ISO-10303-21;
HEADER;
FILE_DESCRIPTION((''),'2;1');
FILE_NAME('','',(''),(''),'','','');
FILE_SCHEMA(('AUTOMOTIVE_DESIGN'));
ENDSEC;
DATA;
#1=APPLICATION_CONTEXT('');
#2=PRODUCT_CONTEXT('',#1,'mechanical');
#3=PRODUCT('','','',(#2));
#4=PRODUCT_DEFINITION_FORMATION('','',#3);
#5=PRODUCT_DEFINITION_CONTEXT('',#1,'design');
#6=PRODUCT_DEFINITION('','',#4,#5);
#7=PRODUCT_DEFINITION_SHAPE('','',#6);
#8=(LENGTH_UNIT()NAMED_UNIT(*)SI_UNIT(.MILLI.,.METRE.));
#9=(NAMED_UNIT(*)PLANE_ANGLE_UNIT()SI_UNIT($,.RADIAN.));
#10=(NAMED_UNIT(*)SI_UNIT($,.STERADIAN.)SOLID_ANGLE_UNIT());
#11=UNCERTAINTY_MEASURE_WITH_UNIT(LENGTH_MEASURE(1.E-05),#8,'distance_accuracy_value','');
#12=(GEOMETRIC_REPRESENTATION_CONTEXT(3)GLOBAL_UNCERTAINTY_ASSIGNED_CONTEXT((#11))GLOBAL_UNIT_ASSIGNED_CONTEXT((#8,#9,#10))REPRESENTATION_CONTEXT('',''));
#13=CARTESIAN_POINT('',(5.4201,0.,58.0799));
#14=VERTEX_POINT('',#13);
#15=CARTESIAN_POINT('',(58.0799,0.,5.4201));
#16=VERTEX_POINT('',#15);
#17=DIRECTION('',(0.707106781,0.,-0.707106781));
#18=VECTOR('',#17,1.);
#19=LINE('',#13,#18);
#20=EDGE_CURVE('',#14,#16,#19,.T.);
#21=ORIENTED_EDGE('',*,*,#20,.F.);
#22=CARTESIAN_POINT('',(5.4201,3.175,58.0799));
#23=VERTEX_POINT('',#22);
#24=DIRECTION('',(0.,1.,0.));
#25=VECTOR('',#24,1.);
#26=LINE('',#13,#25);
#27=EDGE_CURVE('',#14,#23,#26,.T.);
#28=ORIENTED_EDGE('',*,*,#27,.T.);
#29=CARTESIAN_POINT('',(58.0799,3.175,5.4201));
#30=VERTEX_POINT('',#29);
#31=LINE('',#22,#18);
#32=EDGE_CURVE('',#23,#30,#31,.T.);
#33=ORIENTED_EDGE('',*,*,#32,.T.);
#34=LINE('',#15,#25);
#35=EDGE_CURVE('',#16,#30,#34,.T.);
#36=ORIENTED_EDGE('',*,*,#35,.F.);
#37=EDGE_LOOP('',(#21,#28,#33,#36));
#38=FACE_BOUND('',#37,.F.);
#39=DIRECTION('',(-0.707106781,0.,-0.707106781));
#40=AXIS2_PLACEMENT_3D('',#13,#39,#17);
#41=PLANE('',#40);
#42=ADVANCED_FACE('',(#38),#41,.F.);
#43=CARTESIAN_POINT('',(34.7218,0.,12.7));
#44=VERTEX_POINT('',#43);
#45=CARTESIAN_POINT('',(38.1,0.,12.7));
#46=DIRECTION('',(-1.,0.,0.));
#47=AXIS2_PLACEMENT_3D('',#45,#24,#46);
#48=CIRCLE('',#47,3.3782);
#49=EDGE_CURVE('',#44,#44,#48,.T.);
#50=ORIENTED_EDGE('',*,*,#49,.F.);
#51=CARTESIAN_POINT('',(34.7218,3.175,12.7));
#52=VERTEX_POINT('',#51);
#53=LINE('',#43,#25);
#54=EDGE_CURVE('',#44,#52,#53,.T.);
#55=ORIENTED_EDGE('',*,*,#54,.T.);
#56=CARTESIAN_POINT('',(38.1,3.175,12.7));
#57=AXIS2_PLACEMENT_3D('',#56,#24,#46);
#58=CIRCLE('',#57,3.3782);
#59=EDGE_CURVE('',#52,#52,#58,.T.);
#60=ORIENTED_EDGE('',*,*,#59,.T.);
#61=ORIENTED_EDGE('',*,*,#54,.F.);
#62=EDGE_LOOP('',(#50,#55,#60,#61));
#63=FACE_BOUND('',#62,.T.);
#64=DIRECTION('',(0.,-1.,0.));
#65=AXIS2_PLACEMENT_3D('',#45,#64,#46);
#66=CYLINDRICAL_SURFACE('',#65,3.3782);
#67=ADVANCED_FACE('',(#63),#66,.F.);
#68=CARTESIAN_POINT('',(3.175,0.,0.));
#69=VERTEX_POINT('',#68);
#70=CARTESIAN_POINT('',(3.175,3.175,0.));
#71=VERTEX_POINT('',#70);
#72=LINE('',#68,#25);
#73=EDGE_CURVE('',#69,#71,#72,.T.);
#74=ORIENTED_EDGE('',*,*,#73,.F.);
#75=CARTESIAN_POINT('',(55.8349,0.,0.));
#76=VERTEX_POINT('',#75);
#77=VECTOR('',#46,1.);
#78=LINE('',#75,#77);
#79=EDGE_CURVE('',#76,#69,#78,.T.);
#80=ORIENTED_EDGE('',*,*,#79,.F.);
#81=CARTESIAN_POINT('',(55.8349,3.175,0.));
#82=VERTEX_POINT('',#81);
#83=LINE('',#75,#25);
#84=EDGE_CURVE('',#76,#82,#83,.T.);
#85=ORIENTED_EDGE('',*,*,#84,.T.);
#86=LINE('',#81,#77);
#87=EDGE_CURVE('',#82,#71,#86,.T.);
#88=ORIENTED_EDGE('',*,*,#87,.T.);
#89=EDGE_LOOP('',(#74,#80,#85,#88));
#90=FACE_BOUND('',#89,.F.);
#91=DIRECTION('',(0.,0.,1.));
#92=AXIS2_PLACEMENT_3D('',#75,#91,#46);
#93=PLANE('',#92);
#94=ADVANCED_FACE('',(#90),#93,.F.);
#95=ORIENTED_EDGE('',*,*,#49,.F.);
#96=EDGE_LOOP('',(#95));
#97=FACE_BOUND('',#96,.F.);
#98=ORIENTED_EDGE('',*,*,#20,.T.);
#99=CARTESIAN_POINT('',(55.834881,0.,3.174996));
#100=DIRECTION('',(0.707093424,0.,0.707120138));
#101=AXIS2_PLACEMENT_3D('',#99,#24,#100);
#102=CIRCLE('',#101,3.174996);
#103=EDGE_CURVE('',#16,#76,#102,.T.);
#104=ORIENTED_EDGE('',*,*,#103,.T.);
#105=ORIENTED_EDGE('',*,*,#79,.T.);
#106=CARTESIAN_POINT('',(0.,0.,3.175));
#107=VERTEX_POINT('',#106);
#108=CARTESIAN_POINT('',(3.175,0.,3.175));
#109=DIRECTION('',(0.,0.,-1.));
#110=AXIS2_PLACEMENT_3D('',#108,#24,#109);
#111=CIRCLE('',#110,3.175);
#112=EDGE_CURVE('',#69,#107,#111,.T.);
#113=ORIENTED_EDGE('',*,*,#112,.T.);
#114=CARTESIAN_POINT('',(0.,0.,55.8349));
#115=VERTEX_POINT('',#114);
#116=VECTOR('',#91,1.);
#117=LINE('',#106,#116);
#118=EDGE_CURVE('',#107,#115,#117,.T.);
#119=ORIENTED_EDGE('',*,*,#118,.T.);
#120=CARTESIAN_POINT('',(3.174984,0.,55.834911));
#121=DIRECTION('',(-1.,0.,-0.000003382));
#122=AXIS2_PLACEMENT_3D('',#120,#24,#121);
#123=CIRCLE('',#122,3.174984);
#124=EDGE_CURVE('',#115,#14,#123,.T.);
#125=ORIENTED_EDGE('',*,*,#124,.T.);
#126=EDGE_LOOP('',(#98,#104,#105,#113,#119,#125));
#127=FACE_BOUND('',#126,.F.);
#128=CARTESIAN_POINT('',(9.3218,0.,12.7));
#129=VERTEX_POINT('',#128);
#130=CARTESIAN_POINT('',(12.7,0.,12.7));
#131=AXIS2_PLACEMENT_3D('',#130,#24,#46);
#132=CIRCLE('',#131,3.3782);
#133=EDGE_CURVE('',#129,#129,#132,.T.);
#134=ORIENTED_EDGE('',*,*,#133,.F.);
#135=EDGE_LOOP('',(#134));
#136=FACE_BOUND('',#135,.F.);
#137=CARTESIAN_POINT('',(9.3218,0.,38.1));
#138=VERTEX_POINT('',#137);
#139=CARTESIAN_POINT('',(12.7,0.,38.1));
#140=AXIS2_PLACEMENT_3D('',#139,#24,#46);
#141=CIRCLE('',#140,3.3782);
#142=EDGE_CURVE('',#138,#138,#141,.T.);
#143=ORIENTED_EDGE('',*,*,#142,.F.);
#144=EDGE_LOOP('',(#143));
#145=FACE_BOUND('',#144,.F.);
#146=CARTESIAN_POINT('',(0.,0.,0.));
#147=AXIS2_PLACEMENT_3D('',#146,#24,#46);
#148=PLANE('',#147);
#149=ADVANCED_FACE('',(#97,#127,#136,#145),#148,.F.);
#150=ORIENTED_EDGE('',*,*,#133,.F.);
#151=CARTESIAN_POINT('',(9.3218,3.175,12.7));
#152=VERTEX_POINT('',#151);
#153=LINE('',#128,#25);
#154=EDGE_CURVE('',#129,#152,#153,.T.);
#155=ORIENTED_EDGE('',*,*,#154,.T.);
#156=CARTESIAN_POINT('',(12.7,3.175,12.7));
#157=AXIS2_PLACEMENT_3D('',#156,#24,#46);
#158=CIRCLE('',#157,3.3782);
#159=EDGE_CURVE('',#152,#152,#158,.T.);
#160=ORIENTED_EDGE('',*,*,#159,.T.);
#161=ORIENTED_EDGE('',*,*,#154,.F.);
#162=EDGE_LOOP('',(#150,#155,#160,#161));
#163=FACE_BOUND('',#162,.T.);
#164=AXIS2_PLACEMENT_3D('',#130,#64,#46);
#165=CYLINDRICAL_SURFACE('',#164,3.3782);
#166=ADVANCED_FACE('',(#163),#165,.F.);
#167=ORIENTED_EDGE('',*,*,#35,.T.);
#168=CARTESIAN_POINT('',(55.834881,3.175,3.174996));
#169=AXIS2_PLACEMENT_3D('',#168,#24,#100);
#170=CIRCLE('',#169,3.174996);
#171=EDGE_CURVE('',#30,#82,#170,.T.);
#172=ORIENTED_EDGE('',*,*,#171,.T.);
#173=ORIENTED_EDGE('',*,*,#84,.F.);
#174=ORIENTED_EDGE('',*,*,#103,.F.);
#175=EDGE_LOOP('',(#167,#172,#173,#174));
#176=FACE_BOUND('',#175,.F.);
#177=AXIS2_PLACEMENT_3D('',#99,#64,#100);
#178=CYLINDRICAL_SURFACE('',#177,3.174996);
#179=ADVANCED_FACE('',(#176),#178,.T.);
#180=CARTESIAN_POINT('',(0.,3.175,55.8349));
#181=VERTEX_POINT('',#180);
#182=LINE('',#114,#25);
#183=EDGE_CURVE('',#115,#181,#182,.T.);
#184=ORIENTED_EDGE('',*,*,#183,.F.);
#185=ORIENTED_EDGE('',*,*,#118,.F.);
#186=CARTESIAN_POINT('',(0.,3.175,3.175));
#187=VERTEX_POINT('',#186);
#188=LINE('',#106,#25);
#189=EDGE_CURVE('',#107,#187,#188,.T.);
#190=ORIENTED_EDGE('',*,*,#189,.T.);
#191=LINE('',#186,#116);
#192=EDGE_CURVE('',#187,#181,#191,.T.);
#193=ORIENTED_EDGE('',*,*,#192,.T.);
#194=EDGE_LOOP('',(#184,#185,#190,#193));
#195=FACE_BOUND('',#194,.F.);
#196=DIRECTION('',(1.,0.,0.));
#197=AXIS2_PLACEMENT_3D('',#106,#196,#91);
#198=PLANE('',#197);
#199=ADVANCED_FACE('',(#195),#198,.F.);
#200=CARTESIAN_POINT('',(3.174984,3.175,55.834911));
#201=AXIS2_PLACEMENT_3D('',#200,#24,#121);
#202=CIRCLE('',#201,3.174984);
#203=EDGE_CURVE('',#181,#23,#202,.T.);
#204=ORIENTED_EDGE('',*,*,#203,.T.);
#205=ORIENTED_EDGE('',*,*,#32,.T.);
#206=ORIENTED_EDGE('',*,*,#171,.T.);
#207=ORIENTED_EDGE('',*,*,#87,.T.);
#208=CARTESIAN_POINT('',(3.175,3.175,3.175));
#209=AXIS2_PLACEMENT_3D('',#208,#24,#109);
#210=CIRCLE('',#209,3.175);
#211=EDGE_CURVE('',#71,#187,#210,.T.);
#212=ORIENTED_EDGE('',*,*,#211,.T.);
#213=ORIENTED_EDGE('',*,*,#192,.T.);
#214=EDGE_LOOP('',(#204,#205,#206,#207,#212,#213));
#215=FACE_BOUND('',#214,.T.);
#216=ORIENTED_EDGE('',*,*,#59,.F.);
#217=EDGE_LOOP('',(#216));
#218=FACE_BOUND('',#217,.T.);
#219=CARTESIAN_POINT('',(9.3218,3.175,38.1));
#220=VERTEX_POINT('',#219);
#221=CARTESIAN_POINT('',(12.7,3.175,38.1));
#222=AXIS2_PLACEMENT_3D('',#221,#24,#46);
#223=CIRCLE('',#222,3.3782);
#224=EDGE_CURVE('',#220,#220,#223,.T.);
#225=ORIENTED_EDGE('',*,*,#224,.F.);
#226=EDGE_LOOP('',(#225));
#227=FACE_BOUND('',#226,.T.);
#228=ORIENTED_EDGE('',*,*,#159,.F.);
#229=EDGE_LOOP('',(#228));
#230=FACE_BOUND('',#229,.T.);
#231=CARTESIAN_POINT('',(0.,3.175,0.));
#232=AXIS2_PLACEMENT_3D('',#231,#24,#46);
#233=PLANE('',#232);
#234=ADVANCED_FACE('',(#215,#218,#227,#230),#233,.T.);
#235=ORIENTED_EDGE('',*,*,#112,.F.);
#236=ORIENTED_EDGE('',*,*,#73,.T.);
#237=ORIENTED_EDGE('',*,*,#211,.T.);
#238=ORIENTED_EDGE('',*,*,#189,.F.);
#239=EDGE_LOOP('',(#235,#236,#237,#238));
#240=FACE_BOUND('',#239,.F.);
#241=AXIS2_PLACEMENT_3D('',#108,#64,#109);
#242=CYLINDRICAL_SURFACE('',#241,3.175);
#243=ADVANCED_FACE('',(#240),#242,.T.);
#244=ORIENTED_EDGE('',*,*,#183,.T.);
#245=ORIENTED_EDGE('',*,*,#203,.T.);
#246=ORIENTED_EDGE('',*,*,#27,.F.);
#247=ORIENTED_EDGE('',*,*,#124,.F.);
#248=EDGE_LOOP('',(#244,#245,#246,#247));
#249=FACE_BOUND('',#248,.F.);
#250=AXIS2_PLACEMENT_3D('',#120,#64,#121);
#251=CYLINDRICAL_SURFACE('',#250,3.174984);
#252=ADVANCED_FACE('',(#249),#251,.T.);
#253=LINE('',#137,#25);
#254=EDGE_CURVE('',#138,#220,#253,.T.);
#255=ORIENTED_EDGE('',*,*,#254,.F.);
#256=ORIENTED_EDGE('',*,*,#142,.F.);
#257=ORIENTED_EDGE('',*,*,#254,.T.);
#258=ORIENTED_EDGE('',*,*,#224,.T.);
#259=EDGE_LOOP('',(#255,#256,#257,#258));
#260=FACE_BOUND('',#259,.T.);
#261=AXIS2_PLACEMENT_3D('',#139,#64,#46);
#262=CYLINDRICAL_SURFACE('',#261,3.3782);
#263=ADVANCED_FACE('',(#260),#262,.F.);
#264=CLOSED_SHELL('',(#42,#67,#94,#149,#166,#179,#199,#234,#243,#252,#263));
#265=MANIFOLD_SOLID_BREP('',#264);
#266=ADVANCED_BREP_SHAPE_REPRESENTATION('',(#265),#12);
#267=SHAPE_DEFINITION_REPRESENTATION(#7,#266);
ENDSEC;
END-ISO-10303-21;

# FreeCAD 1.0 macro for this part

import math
import FreeCAD as App
import Part
import Sketcher

V = App.Vector
Q = App.Units.Quantity

doc = App.newDocument("Part")
body = doc.addObject("PartDesign::Body", "Body")

# Sketch on XZ plane
sketch1 = body.newObject("Sketcher::SketchObject", "Sketch")
sketch1.AttachmentSupport = (doc.getObject("XZ_Plane"), [""])
sketch1.MapMode = "FlatFace"
sketch1.addGeometry([
    Part.ArcOfCircle(Part.Circle(V(3.2, 3.2, 0), V(0, 0, 1), 3.2), math.radians(180), math.radians(270)),  # 0
    Part.LineSegment(V(0, 3.2, 0), V(0, 55.8, 0)),  # 1
    Part.ArcOfCircle(Part.Circle(V(3.2, 55.8, 0), V(0, 0, 1), 3.2), math.radians(45), math.radians(180)),  # 2
    Part.LineSegment(V(5.4, 58.1, 0), V(58.1, 5.4, 0)),  # 3
    Part.ArcOfCircle(Part.Circle(V(55.8, 3.2, 0), V(0, 0, 1), 3.2), math.radians(-90), math.radians(45)),  # 4
    Part.LineSegment(V(55.8, 0, 0), V(3.2, 0, 0)),  # 5
    Part.Circle(V(38.1, 12.7, 0), V(0, 0, 1), 3.4),  # 6
    Part.Circle(V(12.7, 12.7, 0), V(0, 0, 1), 3.4),  # 7
    Part.Circle(V(12.7, 38.1, 0), V(0, 0, 1), 3.4),  # 8
], False)
sketch1.addConstraint([
    Sketcher.Constraint("Tangent", 0, 1, 1, 1),
    Sketcher.Constraint("Tangent", 1, 2, 2, 2),
    Sketcher.Constraint("Tangent", 2, 1, 3, 1),
    Sketcher.Constraint("Tangent", 3, 2, 4, 2),
    Sketcher.Constraint("Tangent", 4, 1, 5, 1),
    Sketcher.Constraint("Tangent", 5, 2, 0, 2),
    Sketcher.Constraint("Vertical", 1),
    Sketcher.Constraint("Horizontal", 5),
    Sketcher.Constraint("Equal", 0, 2),
    Sketcher.Constraint("Equal", 2, 4),
    Sketcher.Constraint("Equal", 6, 7),
    Sketcher.Constraint("Equal", 7, 8),
    Sketcher.Constraint("PointOnObject", 0, 1, -2),
    Sketcher.Constraint("PointOnObject", 4, 1, -1),
    Sketcher.Constraint("Horizontal", 6, 3, 7, 3),
    Sketcher.Constraint("Vertical", 7, 3, 8, 3),
    Sketcher.Constraint("Equal", 5, 1),
    Sketcher.Constraint("Diameter", 6, Q("0.266 in")),
    Sketcher.Constraint("Radius", 0, Q("0.125 in")),
    Sketcher.Constraint("DistanceX", 7, 3, 6, 3, Q("1 in")),
    Sketcher.Constraint("DistanceY", 7, 3, 8, 3, Q("1 in")),
    Sketcher.Constraint("DistanceY", -1, 1, 6, 3, Q("0.5 in")),
    Sketcher.Constraint("DistanceX", -1, 1, 7, 3, Q("0.5 in")),
    Sketcher.Constraint("DistanceX", 5, 2, 5, 1, Q("52.66 mm")),
])
pad1 = body.newObject("PartDesign::Pad", "Pad")
pad1.Profile = sketch1
pad1.Length = Q("0.125 in")
pad1.Reversed = True

doc.recompute()
